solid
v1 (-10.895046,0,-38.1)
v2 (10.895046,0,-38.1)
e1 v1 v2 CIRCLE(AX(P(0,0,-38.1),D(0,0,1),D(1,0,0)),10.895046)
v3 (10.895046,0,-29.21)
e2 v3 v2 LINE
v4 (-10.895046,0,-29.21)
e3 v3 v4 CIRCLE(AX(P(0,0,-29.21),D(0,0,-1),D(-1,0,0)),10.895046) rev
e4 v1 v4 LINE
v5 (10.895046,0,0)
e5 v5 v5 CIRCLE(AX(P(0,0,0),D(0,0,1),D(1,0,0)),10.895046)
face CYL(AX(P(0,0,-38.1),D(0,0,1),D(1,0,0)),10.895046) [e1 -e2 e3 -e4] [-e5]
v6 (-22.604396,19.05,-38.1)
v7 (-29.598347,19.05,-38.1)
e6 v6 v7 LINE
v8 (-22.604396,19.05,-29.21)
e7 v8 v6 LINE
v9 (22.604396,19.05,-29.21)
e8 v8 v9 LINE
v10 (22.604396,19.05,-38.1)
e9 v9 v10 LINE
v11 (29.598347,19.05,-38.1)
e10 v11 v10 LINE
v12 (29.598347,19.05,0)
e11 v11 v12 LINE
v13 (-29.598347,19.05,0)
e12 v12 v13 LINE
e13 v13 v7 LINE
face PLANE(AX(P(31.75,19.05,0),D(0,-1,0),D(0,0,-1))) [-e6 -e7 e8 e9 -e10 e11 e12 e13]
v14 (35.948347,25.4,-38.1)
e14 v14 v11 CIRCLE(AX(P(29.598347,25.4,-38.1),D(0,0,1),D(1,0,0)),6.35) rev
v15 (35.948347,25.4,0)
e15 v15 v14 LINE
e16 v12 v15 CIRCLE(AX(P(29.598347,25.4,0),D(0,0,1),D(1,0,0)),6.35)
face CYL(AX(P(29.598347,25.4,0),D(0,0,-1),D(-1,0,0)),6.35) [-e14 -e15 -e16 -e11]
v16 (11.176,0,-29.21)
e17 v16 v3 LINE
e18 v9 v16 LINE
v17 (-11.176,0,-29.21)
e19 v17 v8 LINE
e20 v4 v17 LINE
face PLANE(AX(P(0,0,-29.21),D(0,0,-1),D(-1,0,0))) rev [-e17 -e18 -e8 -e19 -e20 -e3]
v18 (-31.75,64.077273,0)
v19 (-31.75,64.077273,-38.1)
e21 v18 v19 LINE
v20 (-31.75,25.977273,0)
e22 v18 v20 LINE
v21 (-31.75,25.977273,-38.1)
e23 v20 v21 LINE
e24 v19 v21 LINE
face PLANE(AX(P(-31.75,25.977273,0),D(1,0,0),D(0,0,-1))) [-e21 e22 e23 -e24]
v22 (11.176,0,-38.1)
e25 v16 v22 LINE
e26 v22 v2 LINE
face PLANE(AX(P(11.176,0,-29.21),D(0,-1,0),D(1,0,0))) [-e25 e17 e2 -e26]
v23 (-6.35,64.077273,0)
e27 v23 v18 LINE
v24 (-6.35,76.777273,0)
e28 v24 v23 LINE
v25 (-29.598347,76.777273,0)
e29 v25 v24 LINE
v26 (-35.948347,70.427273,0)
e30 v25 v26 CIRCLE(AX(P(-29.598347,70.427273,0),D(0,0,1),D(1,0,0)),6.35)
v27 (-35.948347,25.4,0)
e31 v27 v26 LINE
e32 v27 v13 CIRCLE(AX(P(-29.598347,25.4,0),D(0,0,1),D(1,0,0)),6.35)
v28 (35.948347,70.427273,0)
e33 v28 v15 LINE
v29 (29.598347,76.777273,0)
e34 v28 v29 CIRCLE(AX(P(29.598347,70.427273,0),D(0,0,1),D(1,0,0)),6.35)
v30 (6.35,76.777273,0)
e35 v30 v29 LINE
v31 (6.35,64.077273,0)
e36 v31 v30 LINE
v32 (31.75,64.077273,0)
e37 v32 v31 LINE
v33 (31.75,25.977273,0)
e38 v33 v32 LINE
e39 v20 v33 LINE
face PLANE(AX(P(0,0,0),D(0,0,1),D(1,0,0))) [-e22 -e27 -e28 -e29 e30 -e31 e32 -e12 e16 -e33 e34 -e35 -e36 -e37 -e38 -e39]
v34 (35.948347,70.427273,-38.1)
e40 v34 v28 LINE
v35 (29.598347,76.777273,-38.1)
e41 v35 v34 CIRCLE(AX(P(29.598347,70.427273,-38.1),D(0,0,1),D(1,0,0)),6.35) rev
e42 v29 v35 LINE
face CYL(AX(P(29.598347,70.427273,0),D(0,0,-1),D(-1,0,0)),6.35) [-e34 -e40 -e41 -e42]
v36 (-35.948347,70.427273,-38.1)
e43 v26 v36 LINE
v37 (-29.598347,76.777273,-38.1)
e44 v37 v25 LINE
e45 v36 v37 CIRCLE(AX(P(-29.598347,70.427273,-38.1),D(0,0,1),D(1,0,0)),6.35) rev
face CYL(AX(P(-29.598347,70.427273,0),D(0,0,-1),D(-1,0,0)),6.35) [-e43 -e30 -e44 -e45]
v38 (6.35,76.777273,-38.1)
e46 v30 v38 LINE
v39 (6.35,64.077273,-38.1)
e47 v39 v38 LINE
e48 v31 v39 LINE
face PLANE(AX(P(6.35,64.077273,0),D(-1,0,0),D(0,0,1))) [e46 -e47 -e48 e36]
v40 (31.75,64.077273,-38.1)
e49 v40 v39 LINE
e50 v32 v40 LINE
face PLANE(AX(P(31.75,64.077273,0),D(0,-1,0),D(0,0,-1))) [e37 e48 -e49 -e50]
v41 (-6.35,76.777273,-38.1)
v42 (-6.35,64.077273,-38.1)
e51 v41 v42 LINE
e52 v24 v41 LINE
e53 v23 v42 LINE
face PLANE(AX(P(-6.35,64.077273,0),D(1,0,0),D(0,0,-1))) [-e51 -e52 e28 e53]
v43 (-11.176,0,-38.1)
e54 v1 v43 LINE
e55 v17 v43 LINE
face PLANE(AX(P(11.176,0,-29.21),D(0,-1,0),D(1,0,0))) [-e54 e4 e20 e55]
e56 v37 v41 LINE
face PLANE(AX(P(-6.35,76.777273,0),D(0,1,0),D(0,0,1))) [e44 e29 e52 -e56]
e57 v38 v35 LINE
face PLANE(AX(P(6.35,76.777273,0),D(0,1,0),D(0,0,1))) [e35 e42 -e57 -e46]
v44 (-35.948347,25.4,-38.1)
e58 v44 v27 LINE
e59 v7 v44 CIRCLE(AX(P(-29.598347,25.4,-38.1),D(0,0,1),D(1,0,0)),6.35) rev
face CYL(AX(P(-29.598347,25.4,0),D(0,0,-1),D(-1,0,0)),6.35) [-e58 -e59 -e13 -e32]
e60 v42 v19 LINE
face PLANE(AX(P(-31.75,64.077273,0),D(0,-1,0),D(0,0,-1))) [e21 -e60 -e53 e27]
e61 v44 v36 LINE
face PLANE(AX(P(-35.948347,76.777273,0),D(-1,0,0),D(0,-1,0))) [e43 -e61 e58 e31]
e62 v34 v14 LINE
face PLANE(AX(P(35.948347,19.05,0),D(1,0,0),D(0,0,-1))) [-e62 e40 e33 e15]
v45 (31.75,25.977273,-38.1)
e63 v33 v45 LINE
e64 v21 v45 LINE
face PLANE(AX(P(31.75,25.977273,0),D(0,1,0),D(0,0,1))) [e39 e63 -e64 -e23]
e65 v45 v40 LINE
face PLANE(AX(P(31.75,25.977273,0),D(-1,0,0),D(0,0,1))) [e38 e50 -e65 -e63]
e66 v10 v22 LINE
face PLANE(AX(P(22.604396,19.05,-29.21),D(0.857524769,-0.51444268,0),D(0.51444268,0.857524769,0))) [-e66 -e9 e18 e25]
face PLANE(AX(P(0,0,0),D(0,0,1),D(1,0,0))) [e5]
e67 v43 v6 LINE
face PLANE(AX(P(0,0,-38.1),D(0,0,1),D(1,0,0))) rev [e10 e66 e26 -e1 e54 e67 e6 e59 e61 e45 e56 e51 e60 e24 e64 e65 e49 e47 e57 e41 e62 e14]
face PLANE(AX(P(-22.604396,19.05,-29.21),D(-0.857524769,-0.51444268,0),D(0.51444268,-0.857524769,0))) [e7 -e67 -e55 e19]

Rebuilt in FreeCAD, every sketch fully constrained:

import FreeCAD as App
import Part
import Sketcher
Q = App.Units.Quantity


def edges_at(feature, points):
    """Names of the edges that pass closest to the given points."""
    edges = feature.Shape.Edges
    near = lambda p: min(range(len(edges)), key=lambda i: edges[i].distToShape(Part.Vertex(*p))[0])
    return sorted({f"Edge{near(p) + 1}" for p in points})

doc = App.newDocument("Part")
params = doc.addObject("Spreadsheet::Sheet", "Params")
for row, (alias, value) in enumerate([
    ("pad1_length", "1.5 in"),
    ("sketch2_width", "0.88 in"),
    ("pad2_length", "0.35 in"),
    ("sketch3_width", "2.5 in"),
    ("pad3_length", "1.5 in"),
    ("sketch4_width", "1 in"),
    ("sketch4_height", "0.5 in"),
    ("pad4_length", "1.5 in"),
    ("fillet_radius", "0.25 in"),
], start=1):
    params.set(f"A{row}", alias)
    params.set(f"B{row}", "=" + value)
    params.setAlias(f"B{row}", alias)

body = doc.addObject("PartDesign::Body", "Body")

# Sketch on XY plane
sketch1 = doc.addObject("Sketcher::SketchObject", "Sketch")
body.addObject(sketch1)
sketch1.AttachmentSupport = (doc.XY_Plane, [""])
sketch1.MapMode = "FlatFace"
sketch1.addGeometry(Part.Circle(App.Vector(0, 0, 0), App.Vector(0, 0, 1), 11), False)
sketch1.addConstraint(Sketcher.Constraint("Coincident", 0, 3, -1, 1))
sketch1.addConstraint(Sketcher.Constraint("Diameter", 0, 21.790091))
pad1 = doc.addObject("PartDesign::Pad", "Pad")
body.addObject(pad1)
pad1.Profile = sketch1
pad1.setExpression("Length", "Params.pad1_length")
pad1.Reversed = True

# Sketch on XY plane
sketch2 = doc.addObject("Sketcher::SketchObject", "Sketch001")
body.addObject(sketch2)
sketch2.AttachmentSupport = (doc.XY_Plane, [""])
sketch2.MapMode = "FlatFace"
sketch2.AttachmentOffset = App.Placement(App.Vector(0, 0, -1.5 * 25.4), App.Rotation())
sketch2.addGeometry(Part.LineSegment(App.Vector(11, 0, 0), App.Vector(-11, 0, 0)), False)
sketch2.addGeometry(Part.LineSegment(App.Vector(-11, 0, 0), App.Vector(-23, 19, 0)), False)
sketch2.addGeometry(Part.LineSegment(App.Vector(-23, 19, 0), App.Vector(23, 19, 0)), False)
sketch2.addGeometry(Part.LineSegment(App.Vector(23, 19, 0), App.Vector(11, 0, 0)), False)
sketch2.addConstraint(Sketcher.Constraint("Coincident", 0, 2, 1, 1))
sketch2.addConstraint(Sketcher.Constraint("Coincident", 1, 2, 2, 1))
sketch2.addConstraint(Sketcher.Constraint("Coincident", 2, 2, 3, 1))
sketch2.addConstraint(Sketcher.Constraint("Coincident", 3, 2, 0, 1))
sketch2.addConstraint(Sketcher.Constraint("Horizontal", 0))
sketch2.addConstraint(Sketcher.Constraint("Horizontal", 2))
sketch2.addConstraint(Sketcher.Constraint("Symmetric", 0, 2, 3, 2, -1, 1))
sketch2.addConstraint(Sketcher.Constraint("Equal", 1, 3))
sketch2.addConstraint(Sketcher.Constraint("DistanceX", 0, 2, 0, 1, Q("0.88 in")))
sketch2.addConstraint(Sketcher.Constraint("DistanceY", -1, 1, 1, 2, Q("0.75 in")))
sketch2.addConstraint(Sketcher.Constraint("Distance", 1, 22.215102))
sketch2.setExpression("Constraints[8]", "Params.sketch2_width")
pad2 = doc.addObject("PartDesign::Pad", "Pad001")
body.addObject(pad2)
pad2.Profile = sketch2
pad2.setExpression("Length", "Params.pad2_length")

# Sketch on XY plane
sketch3 = doc.addObject("Sketcher::SketchObject", "Sketch002")
body.addObject(sketch3)
sketch3.AttachmentSupport = (doc.XY_Plane, [""])
sketch3.MapMode = "FlatFace"
sketch3.AttachmentOffset = App.Placement(App.Vector(0, 0, -1.5 * 25.4), App.Rotation())
sketch3.addGeometry(Part.LineSegment(App.Vector(32, 26, 0), App.Vector(32, 19, 0)), False)
sketch3.addGeometry(Part.LineSegment(App.Vector(32, 19, 0), App.Vector(-32, 19, 0)), False)
sketch3.addGeometry(Part.LineSegment(App.Vector(-32, 19, 0), App.Vector(-32, 26, 0)), False)
sketch3.addGeometry(Part.LineSegment(App.Vector(-32, 26, 0), App.Vector(32, 26, 0)), False)
sketch3.addConstraint(Sketcher.Constraint("Coincident", 0, 2, 1, 1))
sketch3.addConstraint(Sketcher.Constraint("Coincident", 1, 2, 2, 1))
sketch3.addConstraint(Sketcher.Constraint("Coincident", 2, 2, 3, 1))
sketch3.addConstraint(Sketcher.Constraint("Coincident", 3, 2, 0, 1))
sketch3.addConstraint(Sketcher.Constraint("Vertical", 0))
sketch3.addConstraint(Sketcher.Constraint("Horizontal", 1))
sketch3.addConstraint(Sketcher.Constraint("Vertical", 2))
sketch3.addConstraint(Sketcher.Constraint("Horizontal", 3))
sketch3.addConstraint(Sketcher.Constraint("DistanceX", 1, 2, 1, 1, Q("2.5 in")))
sketch3.addConstraint(Sketcher.Constraint("DistanceX", -1, 1, 0, 2, Q("1.25 in")))
sketch3.addConstraint(Sketcher.Constraint("DistanceY", -1, 1, 0, 2, Q("0.75 in")))
sketch3.addConstraint(Sketcher.Constraint("DistanceY", 0, 2, 0, 1, 6.927273))
sketch3.setExpression("Constraints[8]", "Params.sketch3_width")
pad3 = doc.addObject("PartDesign::Pad", "Pad002")
body.addObject(pad3)
pad3.Profile = sketch3
pad3.setExpression("Length", "Params.pad3_length")

# Sketch on XY plane
sketch4 = doc.addObject("Sketcher::SketchObject", "Sketch003")
body.addObject(sketch4)
sketch4.AttachmentSupport = (doc.XY_Plane, [""])
sketch4.MapMode = "FlatFace"
sketch4.AttachmentOffset = App.Placement(App.Vector(0, 0, -1.5 * 25.4), App.Rotation())
sketch4.addGeometry(Part.LineSegment(App.Vector(31.8, 64.1, 0), App.Vector(6.3, 64.1, 0)), False)
sketch4.addGeometry(Part.LineSegment(App.Vector(6.3, 64.1, 0), App.Vector(6.3, 76.8, 0)), False)
sketch4.addGeometry(Part.LineSegment(App.Vector(6.3, 76.8, 0), App.Vector(35.9, 76.8, 0)), False)
sketch4.addGeometry(Part.LineSegment(App.Vector(35.9, 76.8, 0), App.Vector(35.9, 19.1, 0)), False)
sketch4.addGeometry(Part.LineSegment(App.Vector(35.9, 19.1, 0), App.Vector(31.8, 19.1, 0)), False)
sketch4.addGeometry(Part.LineSegment(App.Vector(31.8, 19.1, 0), App.Vector(31.8, 64.1, 0)), False)
sketch4.addGeometry(Part.LineSegment(App.Vector(-31.8, 64.1, 0), App.Vector(-31.8, 19.1, 0)), False)
sketch4.addGeometry(Part.LineSegment(App.Vector(-31.8, 19.1, 0), App.Vector(-35.9, 19.1, 0)), False)
sketch4.addGeometry(Part.LineSegment(App.Vector(-35.9, 19.1, 0), App.Vector(-35.9, 76.8, 0)), False)
sketch4.addGeometry(Part.LineSegment(App.Vector(-35.9, 76.8, 0), App.Vector(-6.3, 76.8, 0)), False)
sketch4.addGeometry(Part.LineSegment(App.Vector(-6.3, 76.8, 0), App.Vector(-6.3, 64.1, 0)), False)
sketch4.addGeometry(Part.LineSegment(App.Vector(-6.3, 64.1, 0), App.Vector(-31.8, 64.1, 0)), False)
sketch4.addConstraint(Sketcher.Constraint("Coincident", 0, 2, 1, 1))
sketch4.addConstraint(Sketcher.Constraint("Coincident", 1, 2, 2, 1))
sketch4.addConstraint(Sketcher.Constraint("Coincident", 2, 2, 3, 1))
sketch4.addConstraint(Sketcher.Constraint("Coincident", 3, 2, 4, 1))
sketch4.addConstraint(Sketcher.Constraint("Coincident", 4, 2, 5, 1))
sketch4.addConstraint(Sketcher.Constraint("Coincident", 5, 2, 0, 1))
sketch4.addConstraint(Sketcher.Constraint("Coincident", 6, 2, 7, 1))
sketch4.addConstraint(Sketcher.Constraint("Coincident", 7, 2, 8, 1))
sketch4.addConstraint(Sketcher.Constraint("Coincident", 8, 2, 9, 1))
sketch4.addConstraint(Sketcher.Constraint("Coincident", 9, 2, 10, 1))
sketch4.addConstraint(Sketcher.Constraint("Coincident", 10, 2, 11, 1))
sketch4.addConstraint(Sketcher.Constraint("Coincident", 11, 2, 6, 1))
sketch4.addConstraint(Sketcher.Constraint("Horizontal", 0))
sketch4.addConstraint(Sketcher.Constraint("Vertical", 1))
sketch4.addConstraint(Sketcher.Constraint("Horizontal", 2))
sketch4.addConstraint(Sketcher.Constraint("Vertical", 3))
sketch4.addConstraint(Sketcher.Constraint("Horizontal", 4))
sketch4.addConstraint(Sketcher.Constraint("Vertical", 5))
sketch4.addConstraint(Sketcher.Constraint("Vertical", 6))
sketch4.addConstraint(Sketcher.Constraint("Horizontal", 7))
sketch4.addConstraint(Sketcher.Constraint("Vertical", 8))
sketch4.addConstraint(Sketcher.Constraint("Horizontal", 9))
sketch4.addConstraint(Sketcher.Constraint("Vertical", 10))
sketch4.addConstraint(Sketcher.Constraint("Horizontal", 11))
sketch4.addConstraint(Sketcher.Constraint("Symmetric", 4, 2, 6, 2, -2))
sketch4.addConstraint(Sketcher.Constraint("Symmetric", 2, 2, 8, 2, -2))
sketch4.addConstraint(Sketcher.Constraint("Symmetric", 0, 2, 10, 2, -2))
sketch4.addConstraint(Sketcher.Constraint("DistanceX", 0, 2, 0, 1, Q("1 in")))
sketch4.addConstraint(Sketcher.Constraint("DistanceY", 1, 1, 1, 2, Q("0.5 in")))
sketch4.addConstraint(Sketcher.Constraint("DistanceX", 6, 2, 0, 2, Q("1.5 in")))
sketch4.addConstraint(Sketcher.Constraint("DistanceY", -1, 1, 3, 2, Q("0.75 in")))
sketch4.addConstraint(Sketcher.Constraint("DistanceX", 2, 1, 2, 2, 29.598347))
sketch4.addConstraint(Sketcher.Constraint("DistanceY", 3, 2, 3, 1, 57.727273))
sketch4.setExpression("Constraints[27]", "Params.sketch4_width")
sketch4.setExpression("Constraints[28]", "Params.sketch4_height")
pad4 = doc.addObject("PartDesign::Pad", "Pad003")
body.addObject(pad4)
pad4.Profile = sketch4
pad4.setExpression("Length", "Params.pad4_length")
doc.recompute()

fillet = doc.addObject("PartDesign::Fillet", "Fillet")
body.addObject(fillet)
fillet.Base = (pad4, edges_at(pad4, [
    (35.948, 19.05, -19.05),
    (35.948, 76.777, -19.05),
    (-35.948, 76.777, -19.05),
    (-35.948, 19.05, -19.05),
]))
fillet.setExpression("Radius", "Params.fillet_radius")

doc.recompute()
